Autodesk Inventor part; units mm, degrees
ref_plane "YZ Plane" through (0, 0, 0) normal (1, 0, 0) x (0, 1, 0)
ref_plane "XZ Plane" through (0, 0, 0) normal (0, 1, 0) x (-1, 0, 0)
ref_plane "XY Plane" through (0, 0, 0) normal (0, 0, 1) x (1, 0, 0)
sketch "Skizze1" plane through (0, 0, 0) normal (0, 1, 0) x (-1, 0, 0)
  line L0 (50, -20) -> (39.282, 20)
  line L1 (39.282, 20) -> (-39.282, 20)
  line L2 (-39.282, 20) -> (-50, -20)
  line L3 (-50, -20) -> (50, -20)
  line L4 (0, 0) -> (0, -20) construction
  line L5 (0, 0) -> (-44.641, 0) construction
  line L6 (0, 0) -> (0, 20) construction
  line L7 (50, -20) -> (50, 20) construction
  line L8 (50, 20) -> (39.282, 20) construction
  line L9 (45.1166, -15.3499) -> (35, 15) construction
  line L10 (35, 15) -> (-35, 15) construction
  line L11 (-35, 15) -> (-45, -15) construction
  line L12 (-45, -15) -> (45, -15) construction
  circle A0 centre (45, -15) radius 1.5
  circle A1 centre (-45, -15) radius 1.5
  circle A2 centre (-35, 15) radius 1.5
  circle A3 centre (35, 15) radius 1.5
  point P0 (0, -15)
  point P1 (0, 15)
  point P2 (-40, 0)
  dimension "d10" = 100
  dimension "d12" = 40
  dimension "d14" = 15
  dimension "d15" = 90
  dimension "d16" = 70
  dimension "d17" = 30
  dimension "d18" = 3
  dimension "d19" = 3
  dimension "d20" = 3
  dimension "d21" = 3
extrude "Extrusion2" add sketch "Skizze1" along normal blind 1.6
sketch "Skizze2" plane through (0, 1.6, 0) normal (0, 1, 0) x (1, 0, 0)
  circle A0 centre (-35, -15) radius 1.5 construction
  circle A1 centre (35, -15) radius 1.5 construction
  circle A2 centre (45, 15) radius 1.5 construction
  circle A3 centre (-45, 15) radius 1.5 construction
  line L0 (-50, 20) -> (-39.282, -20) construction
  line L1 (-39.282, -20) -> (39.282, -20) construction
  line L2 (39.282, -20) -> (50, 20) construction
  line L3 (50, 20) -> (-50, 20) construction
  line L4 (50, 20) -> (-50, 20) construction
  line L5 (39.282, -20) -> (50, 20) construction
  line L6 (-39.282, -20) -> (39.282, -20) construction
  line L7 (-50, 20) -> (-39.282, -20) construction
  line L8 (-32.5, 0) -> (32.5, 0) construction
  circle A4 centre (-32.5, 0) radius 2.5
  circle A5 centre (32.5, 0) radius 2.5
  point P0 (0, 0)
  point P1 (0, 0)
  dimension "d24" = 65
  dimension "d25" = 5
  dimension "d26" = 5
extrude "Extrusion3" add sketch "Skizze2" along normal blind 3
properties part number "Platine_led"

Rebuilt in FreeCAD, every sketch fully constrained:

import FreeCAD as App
import Part
import Sketcher
Q = App.Units.Quantity

doc = App.newDocument("Part")
params = doc.addObject("Spreadsheet::Sheet", "Params")
for row, (alias, value) in enumerate([
    ("sketch1_width", "3.937 in"),
    ("pad1_length", "0.0629921 in"),
    ("pad2_length", "0.1181102 in"),
], start=1):
    params.set(f"A{row}", alias)
    params.set(f"B{row}", "=" + value)
    params.setAlias(f"B{row}", alias)

body = doc.addObject("PartDesign::Body", "Body")

# Sketch on XZ plane
sketch1 = doc.addObject("Sketcher::SketchObject", "Sketch")
body.addObject(sketch1)
sketch1.AttachmentSupport = (doc.XZ_Plane, [""])
sketch1.MapMode = "FlatFace"
sketch1.addGeometry([
    Part.LineSegment(App.Vector(50, -20, 0), App.Vector(-50, -20, 0)),  # 0
    Part.LineSegment(App.Vector(-50, -20, 0), App.Vector(-39.3, 20, 0)),  # 1
    Part.LineSegment(App.Vector(-39.3, 20, 0), App.Vector(39.3, 20, 0)),  # 2
    Part.LineSegment(App.Vector(39.3, 20, 0), App.Vector(50, -20, 0)),  # 3
    Part.Circle(App.Vector(45, -15, 0), App.Vector(0, 0, 1), 1.5),  # 4
    Part.Circle(App.Vector(-45, -15, 0), App.Vector(0, 0, 1), 1.5),  # 5
    Part.Circle(App.Vector(35, 15, 0), App.Vector(0, 0, 1), 1.5),  # 6
    Part.Circle(App.Vector(-35, 15, 0), App.Vector(0, 0, 1), 1.5),  # 7
], False)
sketch1.addConstraint([
    Sketcher.Constraint("Coincident", 0, 2, 1, 1),
    Sketcher.Constraint("Coincident", 1, 2, 2, 1),
    Sketcher.Constraint("Coincident", 2, 2, 3, 1),
    Sketcher.Constraint("Coincident", 3, 2, 0, 1),
    Sketcher.Constraint("Horizontal", 0),
    Sketcher.Constraint("Horizontal", 2),
    Sketcher.Constraint("Equal", 4, 5),
    Sketcher.Constraint("Equal", 5, 6),
    Sketcher.Constraint("Equal", 6, 7),
    Sketcher.Constraint("Symmetric", 4, 3, 5, 3, -2),
    Sketcher.Constraint("Symmetric", 6, 3, 7, 3, -2),
    Sketcher.Constraint("Equal", 1, 3),
    Sketcher.Constraint("Diameter", 4, Q("0.1181 in")),
    Sketcher.Constraint("DistanceX", 0, 2, 0, 1, Q("3.937 in")),
    Sketcher.Constraint("Angle", 1, Q("75 deg")),
    Sketcher.Constraint("DistanceX", 5, 3, 4, 3, Q("3.5433 in")),
    Sketcher.Constraint("DistanceY", 4, 3, 6, 3, Q("1.1811 in")),
    Sketcher.Constraint("DistanceX", 7, 3, 6, 3, Q("2.7559 in")),
    Sketcher.Constraint("DistanceY", 0, 2, 1, 2, Q("1.5748 in")),
    Sketcher.Constraint("DistanceY", 4, 3, -1, 1, 15.0),
    Sketcher.Constraint("DistanceX", 0, 2, 7, 3, 15.0),
    Sketcher.Constraint("DistanceY", 0, 2, -1, 1, Q("0.7874 in")),
])
sketch1.setExpression("Constraints[13]", "Params.sketch1_width")
pad1 = doc.addObject("PartDesign::Pad", "Pad")
body.addObject(pad1)
pad1.Profile = sketch1
pad1.setExpression("Length", "Params.pad1_length")
pad1.Reversed = True

# Sketch on XZ plane
sketch2 = doc.addObject("Sketcher::SketchObject", "Sketch001")
body.addObject(sketch2)
sketch2.AttachmentSupport = (doc.XZ_Plane, [""])
sketch2.MapMode = "FlatFace"
sketch2.AttachmentOffset = App.Placement(App.Vector(0, 0, -0.0629921 * 25.4), App.Rotation())
sketch2.addGeometry([
    Part.Circle(App.Vector(-32.5, 0, 0), App.Vector(0, 0, 1), 2.5),
    Part.Circle(App.Vector(32.5, 0, 0), App.Vector(0, 0, 1), 2.5),
], False)
sketch2.addConstraint([
    Sketcher.Constraint("Equal", 0, 1),
    Sketcher.Constraint("Symmetric", 0, 3, 1, 3, -1, 1),
    Sketcher.Constraint("PointOnObject", 0, 3, -1),
    Sketcher.Constraint("Diameter", 0, 5.0),
    Sketcher.Constraint("DistanceX", 0, 3, 1, 3, 65.0),
])
pad2 = doc.addObject("PartDesign::Pad", "Pad001")
body.addObject(pad2)
pad2.Profile = sketch2
pad2.setExpression("Length", "Params.pad2_length")
pad2.Reversed = True

doc.recompute()
